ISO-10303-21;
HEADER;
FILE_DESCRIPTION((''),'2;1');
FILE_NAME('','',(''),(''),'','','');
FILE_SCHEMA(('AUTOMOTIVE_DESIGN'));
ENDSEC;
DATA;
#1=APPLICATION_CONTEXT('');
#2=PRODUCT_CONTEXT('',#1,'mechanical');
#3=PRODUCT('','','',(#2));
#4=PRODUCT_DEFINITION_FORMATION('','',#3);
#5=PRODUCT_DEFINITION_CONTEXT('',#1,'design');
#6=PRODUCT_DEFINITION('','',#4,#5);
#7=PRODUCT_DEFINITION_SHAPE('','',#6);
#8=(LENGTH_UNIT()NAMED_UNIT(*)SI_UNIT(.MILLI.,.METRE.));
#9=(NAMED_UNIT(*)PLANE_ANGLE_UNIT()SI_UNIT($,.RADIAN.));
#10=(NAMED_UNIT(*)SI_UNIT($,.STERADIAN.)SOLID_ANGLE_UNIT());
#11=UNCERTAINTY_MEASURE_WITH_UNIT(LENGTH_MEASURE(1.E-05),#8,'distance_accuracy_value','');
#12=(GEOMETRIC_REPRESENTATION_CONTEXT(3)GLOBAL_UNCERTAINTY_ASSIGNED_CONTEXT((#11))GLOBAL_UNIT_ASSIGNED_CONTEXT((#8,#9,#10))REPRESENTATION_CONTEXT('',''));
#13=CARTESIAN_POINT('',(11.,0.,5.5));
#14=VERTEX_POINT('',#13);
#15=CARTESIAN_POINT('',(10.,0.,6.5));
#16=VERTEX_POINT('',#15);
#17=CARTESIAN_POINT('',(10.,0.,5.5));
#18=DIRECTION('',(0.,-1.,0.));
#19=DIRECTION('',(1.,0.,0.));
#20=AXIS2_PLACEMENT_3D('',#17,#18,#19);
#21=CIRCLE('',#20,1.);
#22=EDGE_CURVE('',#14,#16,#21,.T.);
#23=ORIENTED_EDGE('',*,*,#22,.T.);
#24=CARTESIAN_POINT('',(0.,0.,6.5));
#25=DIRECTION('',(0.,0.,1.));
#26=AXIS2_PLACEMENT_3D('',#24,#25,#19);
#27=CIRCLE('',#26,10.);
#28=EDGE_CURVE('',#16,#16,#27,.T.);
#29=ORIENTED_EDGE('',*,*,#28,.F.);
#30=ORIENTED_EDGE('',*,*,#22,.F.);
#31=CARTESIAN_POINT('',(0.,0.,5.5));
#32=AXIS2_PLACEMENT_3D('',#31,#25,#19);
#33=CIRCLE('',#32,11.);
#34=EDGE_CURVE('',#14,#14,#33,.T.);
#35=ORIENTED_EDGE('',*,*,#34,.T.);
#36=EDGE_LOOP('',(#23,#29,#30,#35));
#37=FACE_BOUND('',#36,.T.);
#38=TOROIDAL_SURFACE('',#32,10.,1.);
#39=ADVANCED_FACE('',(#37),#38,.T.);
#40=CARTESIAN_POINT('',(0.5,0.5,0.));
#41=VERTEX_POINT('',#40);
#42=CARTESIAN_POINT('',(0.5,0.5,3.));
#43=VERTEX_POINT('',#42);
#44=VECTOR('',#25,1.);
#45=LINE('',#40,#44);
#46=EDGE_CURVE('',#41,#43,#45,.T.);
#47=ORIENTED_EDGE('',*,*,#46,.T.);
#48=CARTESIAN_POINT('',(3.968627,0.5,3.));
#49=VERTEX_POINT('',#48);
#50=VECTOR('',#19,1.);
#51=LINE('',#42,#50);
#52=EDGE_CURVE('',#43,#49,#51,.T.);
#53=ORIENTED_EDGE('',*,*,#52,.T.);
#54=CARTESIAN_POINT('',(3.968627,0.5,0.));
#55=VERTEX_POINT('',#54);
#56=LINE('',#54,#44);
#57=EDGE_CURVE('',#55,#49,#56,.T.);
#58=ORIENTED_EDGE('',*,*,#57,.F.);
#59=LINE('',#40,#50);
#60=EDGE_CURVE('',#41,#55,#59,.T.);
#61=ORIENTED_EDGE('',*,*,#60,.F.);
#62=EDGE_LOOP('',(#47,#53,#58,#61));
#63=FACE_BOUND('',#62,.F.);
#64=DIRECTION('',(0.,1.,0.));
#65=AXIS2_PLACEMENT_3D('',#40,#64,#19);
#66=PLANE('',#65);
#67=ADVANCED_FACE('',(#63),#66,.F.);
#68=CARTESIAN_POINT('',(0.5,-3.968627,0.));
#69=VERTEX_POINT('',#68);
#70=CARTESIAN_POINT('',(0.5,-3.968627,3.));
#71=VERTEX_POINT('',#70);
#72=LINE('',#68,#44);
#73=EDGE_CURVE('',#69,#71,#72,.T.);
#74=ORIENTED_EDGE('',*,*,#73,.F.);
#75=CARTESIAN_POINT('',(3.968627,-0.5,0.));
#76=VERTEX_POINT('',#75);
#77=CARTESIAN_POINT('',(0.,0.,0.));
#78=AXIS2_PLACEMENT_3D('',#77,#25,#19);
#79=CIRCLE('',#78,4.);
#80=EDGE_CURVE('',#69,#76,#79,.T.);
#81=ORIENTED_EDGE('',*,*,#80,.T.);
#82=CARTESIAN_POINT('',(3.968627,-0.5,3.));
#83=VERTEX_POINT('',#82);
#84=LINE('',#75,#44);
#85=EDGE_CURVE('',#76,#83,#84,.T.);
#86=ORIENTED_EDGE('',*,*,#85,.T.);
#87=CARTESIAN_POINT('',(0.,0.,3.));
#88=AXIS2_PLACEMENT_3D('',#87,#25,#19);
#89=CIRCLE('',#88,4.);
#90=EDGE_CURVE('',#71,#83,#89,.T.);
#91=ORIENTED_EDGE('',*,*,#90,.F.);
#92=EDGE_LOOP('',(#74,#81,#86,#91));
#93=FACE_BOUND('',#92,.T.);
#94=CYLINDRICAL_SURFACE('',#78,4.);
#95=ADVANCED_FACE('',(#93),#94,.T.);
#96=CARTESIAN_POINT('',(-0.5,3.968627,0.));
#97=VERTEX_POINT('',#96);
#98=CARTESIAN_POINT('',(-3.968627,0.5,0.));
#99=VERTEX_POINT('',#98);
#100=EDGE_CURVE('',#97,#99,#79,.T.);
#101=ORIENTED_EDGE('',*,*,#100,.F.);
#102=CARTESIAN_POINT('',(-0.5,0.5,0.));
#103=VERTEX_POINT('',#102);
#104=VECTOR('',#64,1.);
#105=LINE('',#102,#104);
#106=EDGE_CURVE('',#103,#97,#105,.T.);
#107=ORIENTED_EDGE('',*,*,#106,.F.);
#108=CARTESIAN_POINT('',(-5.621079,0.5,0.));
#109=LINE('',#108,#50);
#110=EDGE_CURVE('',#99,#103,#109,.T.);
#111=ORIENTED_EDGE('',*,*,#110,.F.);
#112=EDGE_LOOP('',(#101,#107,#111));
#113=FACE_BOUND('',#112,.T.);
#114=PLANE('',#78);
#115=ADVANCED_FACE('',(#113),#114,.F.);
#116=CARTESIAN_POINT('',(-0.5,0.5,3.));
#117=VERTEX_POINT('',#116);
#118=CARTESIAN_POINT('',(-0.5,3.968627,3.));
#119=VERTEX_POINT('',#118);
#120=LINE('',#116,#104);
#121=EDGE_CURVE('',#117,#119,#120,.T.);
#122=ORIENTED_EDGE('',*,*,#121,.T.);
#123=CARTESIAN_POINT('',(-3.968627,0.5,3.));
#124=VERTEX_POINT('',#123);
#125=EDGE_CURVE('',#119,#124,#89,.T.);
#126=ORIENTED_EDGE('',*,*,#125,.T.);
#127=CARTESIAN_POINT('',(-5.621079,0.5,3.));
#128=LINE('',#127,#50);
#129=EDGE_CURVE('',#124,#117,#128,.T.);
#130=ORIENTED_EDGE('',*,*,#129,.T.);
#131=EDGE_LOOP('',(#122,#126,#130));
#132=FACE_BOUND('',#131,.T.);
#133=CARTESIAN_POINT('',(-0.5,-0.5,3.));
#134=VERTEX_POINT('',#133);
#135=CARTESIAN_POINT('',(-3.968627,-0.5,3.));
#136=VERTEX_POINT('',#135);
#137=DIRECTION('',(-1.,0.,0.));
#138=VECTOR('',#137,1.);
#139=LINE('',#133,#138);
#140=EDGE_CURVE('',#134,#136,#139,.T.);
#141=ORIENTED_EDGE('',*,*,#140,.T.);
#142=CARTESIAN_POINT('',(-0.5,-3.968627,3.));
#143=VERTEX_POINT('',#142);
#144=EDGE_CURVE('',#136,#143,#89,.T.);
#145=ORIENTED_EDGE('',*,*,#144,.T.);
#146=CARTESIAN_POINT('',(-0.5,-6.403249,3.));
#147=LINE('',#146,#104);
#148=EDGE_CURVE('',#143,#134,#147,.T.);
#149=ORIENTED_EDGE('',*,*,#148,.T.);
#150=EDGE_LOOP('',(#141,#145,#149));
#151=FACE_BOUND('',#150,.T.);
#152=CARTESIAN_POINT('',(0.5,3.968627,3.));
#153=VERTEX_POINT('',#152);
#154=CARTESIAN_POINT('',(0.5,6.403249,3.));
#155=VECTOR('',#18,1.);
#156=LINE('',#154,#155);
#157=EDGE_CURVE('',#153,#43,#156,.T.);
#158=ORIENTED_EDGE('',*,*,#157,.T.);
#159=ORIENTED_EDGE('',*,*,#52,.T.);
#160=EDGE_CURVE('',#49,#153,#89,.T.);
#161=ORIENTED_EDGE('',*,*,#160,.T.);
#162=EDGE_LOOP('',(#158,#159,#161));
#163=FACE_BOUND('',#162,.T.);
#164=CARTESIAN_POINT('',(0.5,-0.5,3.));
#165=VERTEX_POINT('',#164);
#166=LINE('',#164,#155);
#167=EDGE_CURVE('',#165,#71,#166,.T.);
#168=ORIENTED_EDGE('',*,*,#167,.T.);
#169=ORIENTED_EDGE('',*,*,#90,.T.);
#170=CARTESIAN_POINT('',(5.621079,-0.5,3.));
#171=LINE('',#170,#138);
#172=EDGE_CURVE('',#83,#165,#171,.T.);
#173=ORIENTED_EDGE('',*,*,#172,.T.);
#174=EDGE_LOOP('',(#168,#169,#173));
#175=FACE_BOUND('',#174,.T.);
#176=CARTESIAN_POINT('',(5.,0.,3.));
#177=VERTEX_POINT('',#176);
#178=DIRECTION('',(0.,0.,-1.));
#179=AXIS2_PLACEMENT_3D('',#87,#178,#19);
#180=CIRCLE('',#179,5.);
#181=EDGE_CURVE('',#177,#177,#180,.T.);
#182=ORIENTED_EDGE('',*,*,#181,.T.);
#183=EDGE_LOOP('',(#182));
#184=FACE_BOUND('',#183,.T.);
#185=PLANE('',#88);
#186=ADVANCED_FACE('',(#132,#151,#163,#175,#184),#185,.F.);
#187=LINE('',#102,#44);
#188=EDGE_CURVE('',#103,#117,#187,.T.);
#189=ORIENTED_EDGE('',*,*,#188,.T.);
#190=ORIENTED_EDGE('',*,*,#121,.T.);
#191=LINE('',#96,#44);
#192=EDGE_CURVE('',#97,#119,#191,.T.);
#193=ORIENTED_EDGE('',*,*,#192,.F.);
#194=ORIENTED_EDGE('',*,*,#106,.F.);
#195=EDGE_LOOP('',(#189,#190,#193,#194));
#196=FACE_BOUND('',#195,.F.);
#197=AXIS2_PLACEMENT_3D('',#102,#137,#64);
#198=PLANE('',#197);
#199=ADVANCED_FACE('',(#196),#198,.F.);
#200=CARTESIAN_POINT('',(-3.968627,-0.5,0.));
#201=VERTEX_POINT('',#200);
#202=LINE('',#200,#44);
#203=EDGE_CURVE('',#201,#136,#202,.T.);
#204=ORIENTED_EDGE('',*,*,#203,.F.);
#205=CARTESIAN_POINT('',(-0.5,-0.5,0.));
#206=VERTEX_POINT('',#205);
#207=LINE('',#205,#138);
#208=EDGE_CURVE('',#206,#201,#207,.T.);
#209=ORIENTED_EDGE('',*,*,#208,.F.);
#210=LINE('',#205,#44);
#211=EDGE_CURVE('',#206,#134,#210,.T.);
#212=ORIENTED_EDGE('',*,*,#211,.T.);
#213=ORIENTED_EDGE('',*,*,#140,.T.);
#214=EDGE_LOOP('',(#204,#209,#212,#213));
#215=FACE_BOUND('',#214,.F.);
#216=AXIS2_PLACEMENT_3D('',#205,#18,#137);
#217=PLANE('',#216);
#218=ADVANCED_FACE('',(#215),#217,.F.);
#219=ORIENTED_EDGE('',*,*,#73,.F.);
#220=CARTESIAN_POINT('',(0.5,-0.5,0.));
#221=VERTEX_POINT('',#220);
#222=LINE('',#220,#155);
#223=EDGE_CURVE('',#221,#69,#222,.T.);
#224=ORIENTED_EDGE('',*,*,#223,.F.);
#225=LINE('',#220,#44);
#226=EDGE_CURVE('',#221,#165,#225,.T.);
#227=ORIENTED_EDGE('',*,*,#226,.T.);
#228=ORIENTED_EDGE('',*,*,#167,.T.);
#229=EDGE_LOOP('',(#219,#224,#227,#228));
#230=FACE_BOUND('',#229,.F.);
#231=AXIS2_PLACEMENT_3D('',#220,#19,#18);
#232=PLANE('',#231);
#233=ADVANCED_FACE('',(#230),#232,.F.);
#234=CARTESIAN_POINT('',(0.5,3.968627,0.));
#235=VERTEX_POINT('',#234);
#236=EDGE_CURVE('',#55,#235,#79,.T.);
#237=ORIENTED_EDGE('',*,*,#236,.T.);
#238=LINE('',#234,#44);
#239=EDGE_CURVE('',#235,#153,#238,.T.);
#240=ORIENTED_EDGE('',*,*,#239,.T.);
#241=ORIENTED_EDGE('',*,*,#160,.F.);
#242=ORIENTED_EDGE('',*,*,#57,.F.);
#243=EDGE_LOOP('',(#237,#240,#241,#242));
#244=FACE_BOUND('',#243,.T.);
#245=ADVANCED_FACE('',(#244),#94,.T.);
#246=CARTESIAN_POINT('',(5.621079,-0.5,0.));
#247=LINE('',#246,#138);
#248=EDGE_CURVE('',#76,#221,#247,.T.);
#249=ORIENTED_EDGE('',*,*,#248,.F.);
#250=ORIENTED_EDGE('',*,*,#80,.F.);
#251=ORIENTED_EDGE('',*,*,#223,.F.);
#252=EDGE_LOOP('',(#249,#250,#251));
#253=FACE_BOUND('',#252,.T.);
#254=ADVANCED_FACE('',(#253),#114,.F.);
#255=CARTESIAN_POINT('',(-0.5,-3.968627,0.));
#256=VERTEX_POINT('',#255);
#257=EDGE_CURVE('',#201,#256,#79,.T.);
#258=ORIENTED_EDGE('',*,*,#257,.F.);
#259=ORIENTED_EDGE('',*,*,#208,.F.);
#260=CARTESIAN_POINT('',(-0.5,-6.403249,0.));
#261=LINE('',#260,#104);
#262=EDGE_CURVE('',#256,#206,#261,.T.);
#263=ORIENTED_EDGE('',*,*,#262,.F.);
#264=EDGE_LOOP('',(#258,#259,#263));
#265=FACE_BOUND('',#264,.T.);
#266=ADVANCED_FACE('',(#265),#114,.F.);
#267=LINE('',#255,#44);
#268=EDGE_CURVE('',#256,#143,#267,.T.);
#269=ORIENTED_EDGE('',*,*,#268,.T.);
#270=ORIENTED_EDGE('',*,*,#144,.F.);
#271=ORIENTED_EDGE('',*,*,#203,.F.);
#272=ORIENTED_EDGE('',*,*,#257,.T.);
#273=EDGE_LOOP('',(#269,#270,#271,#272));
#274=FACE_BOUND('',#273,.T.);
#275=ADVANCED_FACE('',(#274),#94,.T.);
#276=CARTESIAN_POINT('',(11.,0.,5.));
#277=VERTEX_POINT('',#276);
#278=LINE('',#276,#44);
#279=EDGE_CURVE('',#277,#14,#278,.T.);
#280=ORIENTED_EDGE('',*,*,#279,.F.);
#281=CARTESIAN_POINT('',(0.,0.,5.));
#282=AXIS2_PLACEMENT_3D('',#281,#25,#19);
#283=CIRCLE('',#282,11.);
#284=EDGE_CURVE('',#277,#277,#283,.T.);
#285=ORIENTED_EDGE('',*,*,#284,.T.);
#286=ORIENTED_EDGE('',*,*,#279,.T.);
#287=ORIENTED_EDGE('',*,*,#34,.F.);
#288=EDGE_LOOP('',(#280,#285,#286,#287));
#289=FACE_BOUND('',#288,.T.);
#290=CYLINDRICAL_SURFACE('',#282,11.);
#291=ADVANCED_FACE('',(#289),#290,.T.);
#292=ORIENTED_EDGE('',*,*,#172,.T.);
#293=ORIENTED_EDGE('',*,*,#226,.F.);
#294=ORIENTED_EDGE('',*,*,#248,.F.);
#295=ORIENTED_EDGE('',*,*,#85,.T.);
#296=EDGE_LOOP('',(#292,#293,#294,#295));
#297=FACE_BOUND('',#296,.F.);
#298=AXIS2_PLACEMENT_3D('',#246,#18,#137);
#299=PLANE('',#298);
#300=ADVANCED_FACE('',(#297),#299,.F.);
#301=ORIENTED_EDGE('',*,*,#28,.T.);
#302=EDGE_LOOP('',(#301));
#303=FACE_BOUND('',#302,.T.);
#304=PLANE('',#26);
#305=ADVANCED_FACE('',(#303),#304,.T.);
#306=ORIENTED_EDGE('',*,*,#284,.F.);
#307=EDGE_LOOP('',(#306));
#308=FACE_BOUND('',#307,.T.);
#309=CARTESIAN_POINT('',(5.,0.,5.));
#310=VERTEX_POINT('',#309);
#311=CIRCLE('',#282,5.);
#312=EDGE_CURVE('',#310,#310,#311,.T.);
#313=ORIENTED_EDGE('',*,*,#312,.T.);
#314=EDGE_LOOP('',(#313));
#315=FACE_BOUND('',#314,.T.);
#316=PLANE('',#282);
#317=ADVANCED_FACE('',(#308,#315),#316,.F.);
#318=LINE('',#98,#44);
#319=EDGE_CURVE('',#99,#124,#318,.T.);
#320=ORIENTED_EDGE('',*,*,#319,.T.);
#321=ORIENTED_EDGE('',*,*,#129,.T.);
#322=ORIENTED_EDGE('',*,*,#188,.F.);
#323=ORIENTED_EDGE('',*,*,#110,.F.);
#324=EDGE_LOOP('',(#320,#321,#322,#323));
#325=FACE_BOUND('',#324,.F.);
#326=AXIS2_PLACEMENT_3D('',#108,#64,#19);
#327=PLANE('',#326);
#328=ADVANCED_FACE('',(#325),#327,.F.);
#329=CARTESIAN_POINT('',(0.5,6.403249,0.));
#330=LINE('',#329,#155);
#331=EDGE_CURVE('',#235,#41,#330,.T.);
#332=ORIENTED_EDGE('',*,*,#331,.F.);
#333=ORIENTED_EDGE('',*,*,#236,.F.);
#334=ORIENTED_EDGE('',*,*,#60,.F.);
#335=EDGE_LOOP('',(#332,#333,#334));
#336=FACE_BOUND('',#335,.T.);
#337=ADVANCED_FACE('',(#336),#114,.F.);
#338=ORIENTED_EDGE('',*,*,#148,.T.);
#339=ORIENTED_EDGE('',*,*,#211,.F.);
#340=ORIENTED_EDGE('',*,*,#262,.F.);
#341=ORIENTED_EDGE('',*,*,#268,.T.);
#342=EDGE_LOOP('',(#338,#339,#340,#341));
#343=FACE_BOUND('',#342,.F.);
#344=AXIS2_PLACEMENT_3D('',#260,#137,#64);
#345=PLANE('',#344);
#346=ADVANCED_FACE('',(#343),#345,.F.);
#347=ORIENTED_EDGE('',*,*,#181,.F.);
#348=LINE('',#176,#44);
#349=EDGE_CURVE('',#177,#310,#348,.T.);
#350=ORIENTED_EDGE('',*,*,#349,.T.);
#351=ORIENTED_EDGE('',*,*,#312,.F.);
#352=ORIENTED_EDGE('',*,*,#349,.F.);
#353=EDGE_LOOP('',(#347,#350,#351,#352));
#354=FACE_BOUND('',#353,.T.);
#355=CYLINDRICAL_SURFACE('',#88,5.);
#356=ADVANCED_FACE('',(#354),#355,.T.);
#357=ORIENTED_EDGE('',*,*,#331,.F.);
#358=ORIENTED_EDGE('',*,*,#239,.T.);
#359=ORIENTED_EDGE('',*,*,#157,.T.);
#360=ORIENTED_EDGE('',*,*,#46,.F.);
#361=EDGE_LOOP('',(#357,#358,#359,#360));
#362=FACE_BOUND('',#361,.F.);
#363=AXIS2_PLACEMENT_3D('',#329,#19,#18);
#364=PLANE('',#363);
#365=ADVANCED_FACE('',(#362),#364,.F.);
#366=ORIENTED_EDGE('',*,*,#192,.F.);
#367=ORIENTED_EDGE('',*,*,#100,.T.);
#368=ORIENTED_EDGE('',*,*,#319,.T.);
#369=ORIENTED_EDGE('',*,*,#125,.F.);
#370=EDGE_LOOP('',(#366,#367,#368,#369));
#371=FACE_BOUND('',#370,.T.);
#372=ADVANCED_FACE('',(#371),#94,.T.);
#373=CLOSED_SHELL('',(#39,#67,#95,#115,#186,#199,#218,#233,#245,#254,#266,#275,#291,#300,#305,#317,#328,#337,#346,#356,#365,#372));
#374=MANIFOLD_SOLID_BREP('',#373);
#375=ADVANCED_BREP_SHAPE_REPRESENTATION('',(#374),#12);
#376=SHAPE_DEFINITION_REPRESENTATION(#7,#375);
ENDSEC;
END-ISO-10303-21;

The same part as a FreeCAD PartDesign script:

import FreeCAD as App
import Part
import Sketcher

V = App.Vector
Q = App.Units.Quantity


def edges_at(feature, points):
    """Names of the edges that pass closest to the given points."""
    edges = feature.Shape.Edges
    near = lambda p: min(range(len(edges)), key=lambda i: edges[i].distToShape(Part.Vertex(*p))[0])
    return sorted({f"Edge{near(p) + 1}" for p in points})


def add_polygon(sketch, points):
    """Adds a closed chain of lines whose ends are joined by coincident constraints."""
    first, n = sketch.GeometryCount, len(points)
    for a, b in zip(points, points[1:] + points[:1]):
        sketch.addGeometry(Part.LineSegment(App.Vector(*a, 0), App.Vector(*b, 0)), False)
    for i in range(n):
        sketch.addConstraint(Sketcher.Constraint("Coincident", first + i, 2, first + (i + 1) % n, 1))

doc = App.newDocument("Part")
body = doc.addObject("PartDesign::Body", "Body")

# Sketch on XZ plane
sketch1 = doc.addObject("Sketcher::SketchObject", "Sketch")
body.addObject(sketch1)
sketch1.AttachmentSupport = (doc.XZ_Plane, [""])
sketch1.MapMode = "FlatFace"
add_polygon(sketch1, [(0, 6.5), (0, 0), (4, 0), (4, 3), (5, 3), (5, 5), (11, 5), (11, 6.5)])  # lines 0-7
sketch1.addConstraint([
    Sketcher.Constraint("Vertical", 0),
    Sketcher.Constraint("Horizontal", 1),
    Sketcher.Constraint("Vertical", 2),
    Sketcher.Constraint("Horizontal", 3),
    Sketcher.Constraint("Vertical", 4),
    Sketcher.Constraint("Horizontal", 5),
    Sketcher.Constraint("Vertical", 6),
    Sketcher.Constraint("Horizontal", 7),
    Sketcher.Constraint("Coincident", 0, 2, -1, 1),
    Sketcher.Constraint("DistanceX", 1, 1, 1, 2, Q("4 mm")),
    Sketcher.Constraint("DistanceX", 3, 1, 3, 2, Q("1 mm")),
    Sketcher.Constraint("DistanceX", 5, 1, 5, 2, Q("6 mm")),
    Sketcher.Constraint("DistanceY", 2, 1, 2, 2, Q("3 mm")),
    Sketcher.Constraint("DistanceY", 4, 1, 4, 2, Q("2 mm")),
    Sketcher.Constraint("DistanceY", 0, 2, 0, 1, Q("6.5 mm")),
])
revolution = doc.addObject("PartDesign::Revolution", "Revolution")
body.addObject(revolution)
revolution.Profile = sketch1
revolution.ReferenceAxis = (sketch1, ["V_Axis"])
revolution.Angle = 360

# Sketch on XY plane
sketch2 = doc.addObject("Sketcher::SketchObject", "Sketch001")
body.addObject(sketch2)
sketch2.AttachmentSupport = (doc.XY_Plane, [""])
sketch2.MapMode = "FlatFace"
add_polygon(sketch2, [(-0.5, 6.403249), (0.5, 6.403249), (0.5, 0.5), (5.621079, 0.5), (5.621079, -0.5), (0.5, -0.5), (0.5, -6.403249), (-0.5, -6.403249), (-0.5, -0.5), (-5.621079, -0.5), (-5.621079, 0.5), (-0.5, 0.5)])  # lines 0-11
sketch2.addConstraint([
    Sketcher.Constraint("Horizontal", 0),
    Sketcher.Constraint("Vertical", 1),
    Sketcher.Constraint("Horizontal", 2),
    Sketcher.Constraint("Vertical", 3),
    Sketcher.Constraint("Horizontal", 4),
    Sketcher.Constraint("Vertical", 5),
    Sketcher.Constraint("Horizontal", 6),
    Sketcher.Constraint("Vertical", 7),
    Sketcher.Constraint("Horizontal", 8),
    Sketcher.Constraint("Vertical", 9),
    Sketcher.Constraint("Horizontal", 10),
    Sketcher.Constraint("Vertical", 11),
    Sketcher.Constraint("Symmetric", 0, 2, 6, 2, -1, 1),
    Sketcher.Constraint("Symmetric", 2, 2, 8, 2, -1, 1),
    Sketcher.Constraint("Symmetric", 4, 2, 10, 2, -1, 1),
    Sketcher.Constraint("Symmetric", 4, 2, 7, 2, -2),
    Sketcher.Constraint("Equal", 6, 3),
    Sketcher.Constraint("DistanceX", 0, 1, 0, 2, Q("1 mm")),
    Sketcher.Constraint("DistanceX", 2, 1, 2, 2, Q("5.121079 mm")),
    Sketcher.Constraint("DistanceY", 1, 2, 1, 1, Q("5.903249 mm")),
])
pocket1 = doc.addObject("PartDesign::Pocket", "Pocket")
body.addObject(pocket1)
pocket1.Profile = sketch2
pocket1.Length = 3
pocket1.Reversed = True
doc.recompute()

fillet = doc.addObject("PartDesign::Fillet", "Fillet")
body.addObject(fillet)
fillet.Base = (pocket1, edges_at(pocket1, [(-11, 0, 6.5)]))
fillet.Radius = 1

doc.recompute()
